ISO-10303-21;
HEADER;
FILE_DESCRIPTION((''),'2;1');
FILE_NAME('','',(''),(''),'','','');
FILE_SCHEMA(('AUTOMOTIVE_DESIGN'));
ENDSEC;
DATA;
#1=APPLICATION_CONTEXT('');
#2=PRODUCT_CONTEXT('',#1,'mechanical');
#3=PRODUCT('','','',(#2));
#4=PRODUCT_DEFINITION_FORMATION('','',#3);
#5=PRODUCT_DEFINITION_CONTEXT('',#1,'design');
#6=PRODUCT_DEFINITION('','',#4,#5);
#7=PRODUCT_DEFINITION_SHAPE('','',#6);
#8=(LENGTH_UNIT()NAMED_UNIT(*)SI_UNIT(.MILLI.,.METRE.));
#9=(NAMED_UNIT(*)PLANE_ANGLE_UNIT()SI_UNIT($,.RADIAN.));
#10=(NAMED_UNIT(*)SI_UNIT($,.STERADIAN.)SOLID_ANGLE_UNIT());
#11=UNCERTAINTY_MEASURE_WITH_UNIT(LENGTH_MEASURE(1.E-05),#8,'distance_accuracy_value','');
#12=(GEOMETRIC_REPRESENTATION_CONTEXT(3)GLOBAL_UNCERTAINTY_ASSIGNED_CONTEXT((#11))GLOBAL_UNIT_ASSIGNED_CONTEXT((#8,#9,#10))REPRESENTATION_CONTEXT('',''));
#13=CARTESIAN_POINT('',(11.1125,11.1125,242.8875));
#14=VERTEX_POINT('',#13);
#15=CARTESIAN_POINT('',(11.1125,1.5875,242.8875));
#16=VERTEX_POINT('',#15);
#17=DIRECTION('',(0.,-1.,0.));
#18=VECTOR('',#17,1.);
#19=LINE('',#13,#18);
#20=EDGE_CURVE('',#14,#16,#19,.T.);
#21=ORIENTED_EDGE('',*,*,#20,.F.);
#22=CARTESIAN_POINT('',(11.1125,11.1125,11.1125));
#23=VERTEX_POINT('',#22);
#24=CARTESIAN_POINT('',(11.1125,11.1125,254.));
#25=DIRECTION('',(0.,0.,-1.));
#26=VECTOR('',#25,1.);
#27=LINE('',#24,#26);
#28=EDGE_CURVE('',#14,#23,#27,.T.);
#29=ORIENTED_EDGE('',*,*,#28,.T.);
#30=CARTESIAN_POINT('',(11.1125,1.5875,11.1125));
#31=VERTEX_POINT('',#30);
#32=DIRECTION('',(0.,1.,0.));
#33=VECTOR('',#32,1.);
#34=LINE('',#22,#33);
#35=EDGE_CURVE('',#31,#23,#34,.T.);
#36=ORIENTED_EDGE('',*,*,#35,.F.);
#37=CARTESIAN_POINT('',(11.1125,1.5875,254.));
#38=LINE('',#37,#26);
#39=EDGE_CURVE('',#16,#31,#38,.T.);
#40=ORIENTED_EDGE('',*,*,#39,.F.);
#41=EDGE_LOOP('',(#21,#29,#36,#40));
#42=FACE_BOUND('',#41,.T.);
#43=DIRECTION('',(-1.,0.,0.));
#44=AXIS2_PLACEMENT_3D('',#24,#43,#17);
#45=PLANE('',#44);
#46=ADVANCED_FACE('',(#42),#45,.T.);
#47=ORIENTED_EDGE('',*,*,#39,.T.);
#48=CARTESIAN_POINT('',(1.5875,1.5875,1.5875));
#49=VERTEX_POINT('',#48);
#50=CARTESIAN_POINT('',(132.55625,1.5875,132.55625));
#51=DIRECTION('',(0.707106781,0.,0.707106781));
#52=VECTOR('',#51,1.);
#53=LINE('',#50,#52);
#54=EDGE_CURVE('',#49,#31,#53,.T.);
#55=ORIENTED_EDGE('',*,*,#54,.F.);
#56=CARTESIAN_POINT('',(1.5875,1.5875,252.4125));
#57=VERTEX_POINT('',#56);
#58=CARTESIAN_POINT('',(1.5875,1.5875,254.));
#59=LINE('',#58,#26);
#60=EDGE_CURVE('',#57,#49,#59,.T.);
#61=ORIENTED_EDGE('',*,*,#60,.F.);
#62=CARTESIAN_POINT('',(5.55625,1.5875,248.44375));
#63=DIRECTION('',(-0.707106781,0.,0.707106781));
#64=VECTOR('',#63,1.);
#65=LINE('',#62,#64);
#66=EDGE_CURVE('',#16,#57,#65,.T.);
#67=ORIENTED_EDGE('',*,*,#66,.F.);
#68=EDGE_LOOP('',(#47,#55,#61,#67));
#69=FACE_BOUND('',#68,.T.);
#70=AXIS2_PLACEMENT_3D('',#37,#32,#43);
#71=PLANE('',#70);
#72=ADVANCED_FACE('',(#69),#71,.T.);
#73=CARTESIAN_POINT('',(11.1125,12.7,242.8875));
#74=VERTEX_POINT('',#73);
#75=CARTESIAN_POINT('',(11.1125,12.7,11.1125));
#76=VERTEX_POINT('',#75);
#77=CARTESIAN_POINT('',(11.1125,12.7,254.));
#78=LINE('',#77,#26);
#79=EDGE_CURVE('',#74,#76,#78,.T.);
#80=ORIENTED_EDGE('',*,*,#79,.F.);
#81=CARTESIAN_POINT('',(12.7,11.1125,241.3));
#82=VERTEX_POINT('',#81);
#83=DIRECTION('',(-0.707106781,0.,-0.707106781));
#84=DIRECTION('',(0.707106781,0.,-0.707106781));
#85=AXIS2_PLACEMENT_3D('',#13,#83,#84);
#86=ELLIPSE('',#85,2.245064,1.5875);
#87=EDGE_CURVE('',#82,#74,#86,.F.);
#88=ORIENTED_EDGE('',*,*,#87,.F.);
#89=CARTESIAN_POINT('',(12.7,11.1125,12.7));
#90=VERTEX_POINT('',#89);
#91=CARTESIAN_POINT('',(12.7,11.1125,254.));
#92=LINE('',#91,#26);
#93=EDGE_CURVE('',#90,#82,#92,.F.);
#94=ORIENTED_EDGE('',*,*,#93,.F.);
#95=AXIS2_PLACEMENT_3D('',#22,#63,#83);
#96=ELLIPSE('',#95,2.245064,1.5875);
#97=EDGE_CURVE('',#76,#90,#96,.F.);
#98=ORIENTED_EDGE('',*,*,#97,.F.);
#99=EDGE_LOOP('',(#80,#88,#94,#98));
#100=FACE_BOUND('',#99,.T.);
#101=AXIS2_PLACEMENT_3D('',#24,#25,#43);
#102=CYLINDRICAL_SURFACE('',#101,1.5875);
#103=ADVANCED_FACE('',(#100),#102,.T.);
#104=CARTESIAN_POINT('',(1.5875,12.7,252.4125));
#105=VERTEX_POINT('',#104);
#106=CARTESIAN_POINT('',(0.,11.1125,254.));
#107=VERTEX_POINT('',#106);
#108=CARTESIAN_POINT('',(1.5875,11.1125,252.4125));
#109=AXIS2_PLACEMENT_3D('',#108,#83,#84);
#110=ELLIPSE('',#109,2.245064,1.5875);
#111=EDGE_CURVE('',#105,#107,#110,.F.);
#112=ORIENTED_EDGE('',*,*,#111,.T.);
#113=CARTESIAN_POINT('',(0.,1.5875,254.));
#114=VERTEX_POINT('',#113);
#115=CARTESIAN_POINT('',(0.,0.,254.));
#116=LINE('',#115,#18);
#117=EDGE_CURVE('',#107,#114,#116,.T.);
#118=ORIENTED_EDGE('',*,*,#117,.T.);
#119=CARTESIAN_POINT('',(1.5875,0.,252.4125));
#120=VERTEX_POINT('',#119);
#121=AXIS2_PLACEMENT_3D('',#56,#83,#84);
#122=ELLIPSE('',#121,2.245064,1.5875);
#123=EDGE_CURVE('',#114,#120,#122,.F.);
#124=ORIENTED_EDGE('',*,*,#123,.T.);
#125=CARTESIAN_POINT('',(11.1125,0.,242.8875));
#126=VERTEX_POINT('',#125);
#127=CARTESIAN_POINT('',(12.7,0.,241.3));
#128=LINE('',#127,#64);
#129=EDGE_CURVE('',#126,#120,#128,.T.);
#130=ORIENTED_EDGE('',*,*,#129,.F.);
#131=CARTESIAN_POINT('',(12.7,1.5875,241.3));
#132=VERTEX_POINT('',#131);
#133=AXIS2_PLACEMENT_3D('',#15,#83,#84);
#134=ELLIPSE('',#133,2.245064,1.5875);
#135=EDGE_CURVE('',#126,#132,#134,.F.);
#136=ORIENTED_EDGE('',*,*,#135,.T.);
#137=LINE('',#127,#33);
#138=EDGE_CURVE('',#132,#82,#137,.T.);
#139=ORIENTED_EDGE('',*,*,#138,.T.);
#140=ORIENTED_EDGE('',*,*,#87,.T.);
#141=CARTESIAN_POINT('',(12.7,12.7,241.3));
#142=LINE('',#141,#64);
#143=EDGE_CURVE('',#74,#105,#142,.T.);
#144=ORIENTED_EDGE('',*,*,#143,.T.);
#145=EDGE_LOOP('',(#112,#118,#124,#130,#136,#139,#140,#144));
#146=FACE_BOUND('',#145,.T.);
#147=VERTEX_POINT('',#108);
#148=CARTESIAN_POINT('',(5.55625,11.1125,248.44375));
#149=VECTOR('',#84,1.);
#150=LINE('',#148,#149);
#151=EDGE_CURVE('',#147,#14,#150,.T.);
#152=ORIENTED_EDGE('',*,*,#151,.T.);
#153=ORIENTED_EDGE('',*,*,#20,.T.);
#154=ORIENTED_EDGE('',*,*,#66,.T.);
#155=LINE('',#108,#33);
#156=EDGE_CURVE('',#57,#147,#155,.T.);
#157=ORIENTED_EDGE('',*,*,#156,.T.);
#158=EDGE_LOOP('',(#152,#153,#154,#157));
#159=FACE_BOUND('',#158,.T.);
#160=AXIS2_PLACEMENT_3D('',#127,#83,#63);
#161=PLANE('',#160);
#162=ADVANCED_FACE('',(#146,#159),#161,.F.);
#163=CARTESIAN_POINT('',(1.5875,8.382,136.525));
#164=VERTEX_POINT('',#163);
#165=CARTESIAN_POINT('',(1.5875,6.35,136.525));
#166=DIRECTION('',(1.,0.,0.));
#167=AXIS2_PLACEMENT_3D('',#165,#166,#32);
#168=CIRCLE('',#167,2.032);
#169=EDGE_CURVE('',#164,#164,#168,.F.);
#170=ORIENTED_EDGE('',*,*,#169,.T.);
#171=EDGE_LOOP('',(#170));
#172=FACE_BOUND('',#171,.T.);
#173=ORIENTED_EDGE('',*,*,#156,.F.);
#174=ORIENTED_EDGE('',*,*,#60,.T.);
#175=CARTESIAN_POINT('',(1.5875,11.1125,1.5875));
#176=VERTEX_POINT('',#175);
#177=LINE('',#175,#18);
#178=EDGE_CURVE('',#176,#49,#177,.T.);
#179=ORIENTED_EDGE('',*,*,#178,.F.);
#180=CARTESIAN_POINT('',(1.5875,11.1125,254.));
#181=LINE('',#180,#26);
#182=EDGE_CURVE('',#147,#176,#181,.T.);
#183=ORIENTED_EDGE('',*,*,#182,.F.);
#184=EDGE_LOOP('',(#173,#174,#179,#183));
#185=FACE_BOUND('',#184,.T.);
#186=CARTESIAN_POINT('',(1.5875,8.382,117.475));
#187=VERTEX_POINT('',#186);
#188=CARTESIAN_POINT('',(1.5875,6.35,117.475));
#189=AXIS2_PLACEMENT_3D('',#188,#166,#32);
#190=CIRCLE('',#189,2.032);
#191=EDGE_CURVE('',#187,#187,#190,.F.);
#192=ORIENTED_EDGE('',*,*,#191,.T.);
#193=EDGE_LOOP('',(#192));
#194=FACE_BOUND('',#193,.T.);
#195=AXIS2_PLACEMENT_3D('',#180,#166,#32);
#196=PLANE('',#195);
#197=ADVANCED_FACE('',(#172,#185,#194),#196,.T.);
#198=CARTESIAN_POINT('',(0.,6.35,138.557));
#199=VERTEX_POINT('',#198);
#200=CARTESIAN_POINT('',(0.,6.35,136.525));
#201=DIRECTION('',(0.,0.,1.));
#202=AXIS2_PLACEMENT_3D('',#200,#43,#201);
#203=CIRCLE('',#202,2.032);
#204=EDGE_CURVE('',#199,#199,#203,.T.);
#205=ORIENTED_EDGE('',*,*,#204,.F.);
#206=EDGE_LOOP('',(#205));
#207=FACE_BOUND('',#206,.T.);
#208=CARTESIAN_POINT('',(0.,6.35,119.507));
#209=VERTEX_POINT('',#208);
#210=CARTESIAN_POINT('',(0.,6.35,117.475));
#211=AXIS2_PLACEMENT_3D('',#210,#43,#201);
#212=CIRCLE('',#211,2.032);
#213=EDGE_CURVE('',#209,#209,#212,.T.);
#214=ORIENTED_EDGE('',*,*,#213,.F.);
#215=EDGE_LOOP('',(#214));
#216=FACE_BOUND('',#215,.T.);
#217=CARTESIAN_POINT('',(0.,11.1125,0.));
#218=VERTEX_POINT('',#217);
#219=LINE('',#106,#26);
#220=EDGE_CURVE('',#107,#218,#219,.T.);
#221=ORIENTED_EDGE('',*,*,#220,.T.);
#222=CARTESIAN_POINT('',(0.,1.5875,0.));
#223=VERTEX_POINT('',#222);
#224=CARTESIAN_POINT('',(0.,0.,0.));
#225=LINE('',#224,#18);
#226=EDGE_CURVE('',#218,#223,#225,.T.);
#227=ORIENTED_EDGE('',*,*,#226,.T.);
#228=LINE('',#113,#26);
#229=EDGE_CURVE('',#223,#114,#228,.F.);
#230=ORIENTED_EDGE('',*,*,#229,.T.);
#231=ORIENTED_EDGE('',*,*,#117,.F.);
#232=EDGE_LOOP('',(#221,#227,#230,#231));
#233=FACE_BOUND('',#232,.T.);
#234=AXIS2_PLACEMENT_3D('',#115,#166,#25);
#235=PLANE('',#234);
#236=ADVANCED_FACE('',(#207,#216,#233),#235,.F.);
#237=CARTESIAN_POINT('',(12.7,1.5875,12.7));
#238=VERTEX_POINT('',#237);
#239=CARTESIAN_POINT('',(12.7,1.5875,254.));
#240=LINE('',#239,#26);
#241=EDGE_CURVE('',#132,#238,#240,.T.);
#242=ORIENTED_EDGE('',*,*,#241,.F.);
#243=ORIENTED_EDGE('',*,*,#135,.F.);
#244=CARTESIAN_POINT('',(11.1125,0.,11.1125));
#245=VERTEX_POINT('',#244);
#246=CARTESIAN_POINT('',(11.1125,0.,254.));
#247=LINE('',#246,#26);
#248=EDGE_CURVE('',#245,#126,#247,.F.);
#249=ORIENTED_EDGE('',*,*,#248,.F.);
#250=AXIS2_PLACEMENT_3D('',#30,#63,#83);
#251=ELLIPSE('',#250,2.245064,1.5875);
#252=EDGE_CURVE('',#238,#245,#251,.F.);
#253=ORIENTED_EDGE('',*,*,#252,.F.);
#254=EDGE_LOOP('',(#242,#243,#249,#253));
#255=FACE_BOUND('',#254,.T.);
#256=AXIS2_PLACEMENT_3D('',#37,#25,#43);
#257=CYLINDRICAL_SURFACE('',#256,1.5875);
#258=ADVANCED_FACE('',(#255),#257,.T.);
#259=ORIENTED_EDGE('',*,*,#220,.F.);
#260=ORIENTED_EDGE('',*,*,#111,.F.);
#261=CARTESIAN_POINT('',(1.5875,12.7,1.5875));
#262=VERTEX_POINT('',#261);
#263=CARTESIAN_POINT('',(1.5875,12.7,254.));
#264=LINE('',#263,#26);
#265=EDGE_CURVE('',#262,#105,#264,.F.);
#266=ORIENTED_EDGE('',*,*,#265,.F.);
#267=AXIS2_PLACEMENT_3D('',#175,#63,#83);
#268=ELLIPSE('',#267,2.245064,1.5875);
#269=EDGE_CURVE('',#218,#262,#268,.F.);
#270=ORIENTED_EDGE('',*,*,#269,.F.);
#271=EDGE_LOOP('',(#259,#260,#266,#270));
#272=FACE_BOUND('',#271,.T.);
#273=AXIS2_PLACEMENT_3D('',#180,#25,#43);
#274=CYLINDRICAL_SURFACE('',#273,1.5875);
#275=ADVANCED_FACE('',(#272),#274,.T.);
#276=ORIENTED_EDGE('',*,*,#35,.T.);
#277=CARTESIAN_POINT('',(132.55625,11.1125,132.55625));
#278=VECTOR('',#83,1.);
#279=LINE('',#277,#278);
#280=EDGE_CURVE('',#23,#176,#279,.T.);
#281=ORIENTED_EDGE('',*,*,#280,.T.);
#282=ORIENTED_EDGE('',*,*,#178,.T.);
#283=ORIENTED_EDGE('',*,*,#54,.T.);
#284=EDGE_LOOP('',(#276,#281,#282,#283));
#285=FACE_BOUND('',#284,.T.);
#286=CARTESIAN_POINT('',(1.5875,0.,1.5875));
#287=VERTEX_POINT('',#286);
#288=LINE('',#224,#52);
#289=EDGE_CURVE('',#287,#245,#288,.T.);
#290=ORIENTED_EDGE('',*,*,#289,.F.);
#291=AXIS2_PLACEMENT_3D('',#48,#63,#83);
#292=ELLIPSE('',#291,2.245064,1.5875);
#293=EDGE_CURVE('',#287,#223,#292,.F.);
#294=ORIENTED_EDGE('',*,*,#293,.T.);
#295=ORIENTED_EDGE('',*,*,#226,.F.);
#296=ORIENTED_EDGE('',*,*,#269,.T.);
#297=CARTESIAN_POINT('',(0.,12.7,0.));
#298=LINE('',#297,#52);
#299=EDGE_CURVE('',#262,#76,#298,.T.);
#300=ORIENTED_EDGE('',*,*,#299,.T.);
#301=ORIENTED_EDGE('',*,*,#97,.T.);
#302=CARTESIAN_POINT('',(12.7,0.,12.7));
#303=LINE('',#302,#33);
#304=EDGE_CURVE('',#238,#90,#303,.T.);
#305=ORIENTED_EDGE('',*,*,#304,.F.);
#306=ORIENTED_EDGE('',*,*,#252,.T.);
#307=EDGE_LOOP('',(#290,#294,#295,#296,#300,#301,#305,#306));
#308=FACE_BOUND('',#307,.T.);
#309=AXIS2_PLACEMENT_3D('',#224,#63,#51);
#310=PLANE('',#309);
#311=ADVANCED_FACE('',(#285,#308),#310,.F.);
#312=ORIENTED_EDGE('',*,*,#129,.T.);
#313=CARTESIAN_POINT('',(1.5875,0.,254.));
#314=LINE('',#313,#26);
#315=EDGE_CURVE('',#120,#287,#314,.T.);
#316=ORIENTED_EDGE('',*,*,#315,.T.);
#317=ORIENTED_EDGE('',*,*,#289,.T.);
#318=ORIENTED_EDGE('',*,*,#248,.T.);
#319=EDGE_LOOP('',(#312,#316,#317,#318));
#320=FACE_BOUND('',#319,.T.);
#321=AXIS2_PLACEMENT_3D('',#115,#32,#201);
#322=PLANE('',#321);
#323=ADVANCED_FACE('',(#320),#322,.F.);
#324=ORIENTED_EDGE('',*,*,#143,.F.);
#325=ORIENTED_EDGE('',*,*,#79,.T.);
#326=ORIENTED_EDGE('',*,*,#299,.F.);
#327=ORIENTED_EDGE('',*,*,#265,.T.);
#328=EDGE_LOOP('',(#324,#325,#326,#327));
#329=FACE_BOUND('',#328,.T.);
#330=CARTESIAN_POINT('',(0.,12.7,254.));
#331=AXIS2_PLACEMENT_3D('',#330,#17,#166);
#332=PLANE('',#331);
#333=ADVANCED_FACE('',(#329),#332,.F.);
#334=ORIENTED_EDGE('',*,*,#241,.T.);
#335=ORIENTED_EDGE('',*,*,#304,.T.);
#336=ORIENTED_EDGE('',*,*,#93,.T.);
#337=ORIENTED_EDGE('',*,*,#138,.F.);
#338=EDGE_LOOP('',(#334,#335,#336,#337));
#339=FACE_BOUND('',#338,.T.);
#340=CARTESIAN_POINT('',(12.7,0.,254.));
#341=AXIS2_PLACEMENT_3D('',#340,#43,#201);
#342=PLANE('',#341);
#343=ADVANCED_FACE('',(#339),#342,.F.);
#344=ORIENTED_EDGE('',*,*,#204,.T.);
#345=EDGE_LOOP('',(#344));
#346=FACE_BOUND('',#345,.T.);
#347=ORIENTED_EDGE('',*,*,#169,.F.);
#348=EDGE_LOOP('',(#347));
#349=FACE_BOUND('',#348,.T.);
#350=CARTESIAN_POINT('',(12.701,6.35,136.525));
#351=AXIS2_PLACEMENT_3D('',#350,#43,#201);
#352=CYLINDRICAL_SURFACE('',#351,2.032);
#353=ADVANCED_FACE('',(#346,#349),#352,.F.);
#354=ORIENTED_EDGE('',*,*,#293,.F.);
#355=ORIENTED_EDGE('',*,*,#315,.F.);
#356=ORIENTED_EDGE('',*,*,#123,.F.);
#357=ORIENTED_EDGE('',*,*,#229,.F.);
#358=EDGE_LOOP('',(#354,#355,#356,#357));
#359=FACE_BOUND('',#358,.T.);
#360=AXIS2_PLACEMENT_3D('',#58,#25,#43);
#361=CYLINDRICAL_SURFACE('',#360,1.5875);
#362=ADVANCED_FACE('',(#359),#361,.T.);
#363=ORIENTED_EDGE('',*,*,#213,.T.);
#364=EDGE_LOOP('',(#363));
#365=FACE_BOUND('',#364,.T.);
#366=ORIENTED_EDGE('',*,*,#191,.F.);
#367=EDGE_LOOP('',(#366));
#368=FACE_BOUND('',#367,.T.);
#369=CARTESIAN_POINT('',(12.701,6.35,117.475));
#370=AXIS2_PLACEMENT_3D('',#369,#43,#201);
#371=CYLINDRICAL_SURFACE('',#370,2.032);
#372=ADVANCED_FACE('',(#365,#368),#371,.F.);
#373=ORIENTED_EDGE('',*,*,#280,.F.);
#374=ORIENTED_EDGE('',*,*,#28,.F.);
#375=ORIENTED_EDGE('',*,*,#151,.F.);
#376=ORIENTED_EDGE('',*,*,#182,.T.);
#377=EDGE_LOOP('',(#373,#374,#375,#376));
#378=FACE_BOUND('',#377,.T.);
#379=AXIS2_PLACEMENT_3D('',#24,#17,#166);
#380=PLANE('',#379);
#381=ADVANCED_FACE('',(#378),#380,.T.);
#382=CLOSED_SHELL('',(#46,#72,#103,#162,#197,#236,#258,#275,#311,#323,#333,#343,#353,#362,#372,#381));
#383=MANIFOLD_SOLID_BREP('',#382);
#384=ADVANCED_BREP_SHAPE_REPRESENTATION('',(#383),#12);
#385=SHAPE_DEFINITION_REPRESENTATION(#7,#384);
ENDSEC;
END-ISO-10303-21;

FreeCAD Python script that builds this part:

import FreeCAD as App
import Part
import Sketcher

V = App.Vector
Q = App.Units.Quantity


def edges_at(feature, points):
    """Names of the edges that pass closest to the given points."""
    edges = feature.Shape.Edges
    near = lambda p: min(range(len(edges)), key=lambda i: edges[i].distToShape(Part.Vertex(*p))[0])
    return sorted({f"Edge{near(p) + 1}" for p in points})

doc = App.newDocument("Part")
body = doc.addObject("PartDesign::Body", "Body")

# Sketch on XY plane
sketch1 = body.newObject("Sketcher::SketchObject", "Sketch")
sketch1.AttachmentSupport = (doc.getObject("XY_Plane"), [""])
sketch1.MapMode = "FlatFace"
sketch1.addGeometry(Part.LineSegment(V(0, 13, 0), V(0, 0, 0)), False)
sketch1.addGeometry(Part.LineSegment(V(0, 0, 0), V(13, 0, 0)), False)
sketch1.addGeometry(Part.LineSegment(V(13, 0, 0), V(13, 13, 0)), False)
sketch1.addGeometry(Part.LineSegment(V(13, 13, 0), V(0, 13, 0)), False)
sketch1.addGeometry(Part.LineSegment(V(11, 2, 0), V(2, 2, 0)), False)
sketch1.addGeometry(Part.LineSegment(V(2, 2, 0), V(2, 11, 0)), False)
sketch1.addGeometry(Part.LineSegment(V(2, 11, 0), V(11, 11, 0)), False)
sketch1.addGeometry(Part.LineSegment(V(11, 11, 0), V(11, 2, 0)), False)
sketch1.addConstraint(Sketcher.Constraint("Coincident", 0, 2, 1, 1))
sketch1.addConstraint(Sketcher.Constraint("Coincident", 1, 2, 2, 1))
sketch1.addConstraint(Sketcher.Constraint("Coincident", 2, 2, 3, 1))
sketch1.addConstraint(Sketcher.Constraint("Coincident", 3, 2, 0, 1))
sketch1.addConstraint(Sketcher.Constraint("Coincident", 4, 2, 5, 1))
sketch1.addConstraint(Sketcher.Constraint("Coincident", 5, 2, 6, 1))
sketch1.addConstraint(Sketcher.Constraint("Coincident", 6, 2, 7, 1))
sketch1.addConstraint(Sketcher.Constraint("Coincident", 7, 2, 4, 1))
sketch1.addConstraint(Sketcher.Constraint("Vertical", 0))
sketch1.addConstraint(Sketcher.Constraint("Horizontal", 1))
sketch1.addConstraint(Sketcher.Constraint("Vertical", 2))
sketch1.addConstraint(Sketcher.Constraint("Horizontal", 3))
sketch1.addConstraint(Sketcher.Constraint("Horizontal", 4))
sketch1.addConstraint(Sketcher.Constraint("Vertical", 5))
sketch1.addConstraint(Sketcher.Constraint("Horizontal", 6))
sketch1.addConstraint(Sketcher.Constraint("Vertical", 7))
sketch1.addConstraint(Sketcher.Constraint("Coincident", 0, 2, -1, 1))
sketch1.addConstraint(Sketcher.Constraint("Equal", 3, 0))
sketch1.addConstraint(Sketcher.Constraint("Equal", 6, 5))
sketch1.addConstraint(Sketcher.Constraint("DistanceX", 1, 1, 1, 2, Q("0.5 in")))
sketch1.addConstraint(Sketcher.Constraint("DistanceX", 4, 2, 4, 1, Q("0.375 in")))
sketch1.addConstraint(Sketcher.Constraint("DistanceX", -1, 1, 4, 2, Q("0.0625 in")))
sketch1.addConstraint(Sketcher.Constraint("DistanceY", -1, 1, 4, 2, Q("0.0625 in")))
pad1 = body.newObject("PartDesign::Pad", "Pad")
pad1.Profile = sketch1
pad1.Length = Q("10 in")

# Sketch on XZ plane
sketch2 = body.newObject("Sketcher::SketchObject", "Sketch001")
sketch2.AttachmentSupport = (doc.getObject("XZ_Plane"), [""])
sketch2.MapMode = "FlatFace"
sketch2.AttachmentOffset = App.Placement(V(0, 0, -0.5 * 25.4), App.Rotation())
sketch2.addGeometry(Part.LineSegment(V(0, 254, 0), V(13, 254, 0)), False)
sketch2.addGeometry(Part.LineSegment(V(13, 254, 0), V(13, 241, 0)), False)
sketch2.addGeometry(Part.LineSegment(V(13, 241, 0), V(0, 254, 0)), False)
sketch2.addGeometry(Part.LineSegment(V(0, 0, 0), V(13, 13, 0)), False)
sketch2.addGeometry(Part.LineSegment(V(13, 13, 0), V(13, 0, 0)), False)
sketch2.addGeometry(Part.LineSegment(V(13, 0, 0), V(0, 0, 0)), False)
sketch2.addConstraint(Sketcher.Constraint("Coincident", 0, 2, 1, 1))
sketch2.addConstraint(Sketcher.Constraint("Coincident", 1, 2, 2, 1))
sketch2.addConstraint(Sketcher.Constraint("Coincident", 2, 2, 0, 1))
sketch2.addConstraint(Sketcher.Constraint("Coincident", 3, 2, 4, 1))
sketch2.addConstraint(Sketcher.Constraint("Coincident", 4, 2, 5, 1))
sketch2.addConstraint(Sketcher.Constraint("Coincident", 5, 2, 3, 1))
sketch2.addConstraint(Sketcher.Constraint("Horizontal", 0))
sketch2.addConstraint(Sketcher.Constraint("Vertical", 1))
sketch2.addConstraint(Sketcher.Constraint("Vertical", 4))
sketch2.addConstraint(Sketcher.Constraint("Horizontal", 5))
sketch2.addConstraint(Sketcher.Constraint("Coincident", 5, 2, -1, 1))
sketch2.addConstraint(Sketcher.Constraint("PointOnObject", 2, 2, -2))
sketch2.addConstraint(Sketcher.Constraint("Perpendicular", 2, 3))
sketch2.addConstraint(Sketcher.Constraint("Vertical", 1, 2, 3, 2))
sketch2.addConstraint(Sketcher.Constraint("Equal", 5, 1))
sketch2.addConstraint(Sketcher.Constraint("DistanceX", 0, 1, 0, 2, Q("0.5 in")))
sketch2.addConstraint(Sketcher.Constraint("DistanceY", -1, 1, 0, 2, Q("10 in")))
pocket1 = body.newObject("PartDesign::Pocket", "Pocket")
pocket1.Profile = sketch2
pocket1.Type = "ThroughAll"
pocket1.Reversed = True
doc.recompute()

fillet = body.newObject("PartDesign::Fillet", "Fillet")
fillet.Base = (pocket1, edges_at(pocket1, [
    (12.7, 12.7, 127),
    (12.7, 0, 127),
    (0, 12.7, 127),
    (0, 0, 127),
]))
fillet.Radius = Q("0.0625 in")

# Sketch on YZ plane
sketch3 = body.newObject("Sketcher::SketchObject", "Sketch002")
sketch3.AttachmentSupport = (doc.getObject("YZ_Plane"), [""])
sketch3.MapMode = "FlatFace"
sketch3.addGeometry(Part.Circle(V(6.3, 136.5, 0), V(0, 0, 1), 2), False)
sketch3.addConstraint(Sketcher.Constraint("Diameter", 0, Q("0.16 in")))
sketch3.addConstraint(Sketcher.Constraint("DistanceX", -1, 1, 0, 3, Q("0.25 in")))
sketch3.addConstraint(Sketcher.Constraint("DistanceY", -1, 1, 0, 3, Q("5.375 in")))
pocket2 = body.newObject("PartDesign::Pocket", "Pocket001")
pocket2.Profile = sketch3
pocket2.Type = "UpToFirst"
pocket2.Reversed = True

# Sketch on YZ plane
sketch4 = body.newObject("Sketcher::SketchObject", "Sketch003")
sketch4.AttachmentSupport = (doc.getObject("YZ_Plane"), [""])
sketch4.MapMode = "FlatFace"
sketch4.addGeometry(Part.Circle(V(6.3, 117.5, 0), V(0, 0, 1), 2), False)
sketch4.addConstraint(Sketcher.Constraint("Diameter", 0, Q("0.16 in")))
sketch4.addConstraint(Sketcher.Constraint("DistanceX", -1, 1, 0, 3, Q("0.25 in")))
sketch4.addConstraint(Sketcher.Constraint("DistanceY", -1, 1, 0, 3, Q("4.625 in")))
pocket3 = body.newObject("PartDesign::Pocket", "Pocket002")
pocket3.Profile = sketch4
pocket3.Type = "UpToFirst"
pocket3.Reversed = True

doc.recompute()
